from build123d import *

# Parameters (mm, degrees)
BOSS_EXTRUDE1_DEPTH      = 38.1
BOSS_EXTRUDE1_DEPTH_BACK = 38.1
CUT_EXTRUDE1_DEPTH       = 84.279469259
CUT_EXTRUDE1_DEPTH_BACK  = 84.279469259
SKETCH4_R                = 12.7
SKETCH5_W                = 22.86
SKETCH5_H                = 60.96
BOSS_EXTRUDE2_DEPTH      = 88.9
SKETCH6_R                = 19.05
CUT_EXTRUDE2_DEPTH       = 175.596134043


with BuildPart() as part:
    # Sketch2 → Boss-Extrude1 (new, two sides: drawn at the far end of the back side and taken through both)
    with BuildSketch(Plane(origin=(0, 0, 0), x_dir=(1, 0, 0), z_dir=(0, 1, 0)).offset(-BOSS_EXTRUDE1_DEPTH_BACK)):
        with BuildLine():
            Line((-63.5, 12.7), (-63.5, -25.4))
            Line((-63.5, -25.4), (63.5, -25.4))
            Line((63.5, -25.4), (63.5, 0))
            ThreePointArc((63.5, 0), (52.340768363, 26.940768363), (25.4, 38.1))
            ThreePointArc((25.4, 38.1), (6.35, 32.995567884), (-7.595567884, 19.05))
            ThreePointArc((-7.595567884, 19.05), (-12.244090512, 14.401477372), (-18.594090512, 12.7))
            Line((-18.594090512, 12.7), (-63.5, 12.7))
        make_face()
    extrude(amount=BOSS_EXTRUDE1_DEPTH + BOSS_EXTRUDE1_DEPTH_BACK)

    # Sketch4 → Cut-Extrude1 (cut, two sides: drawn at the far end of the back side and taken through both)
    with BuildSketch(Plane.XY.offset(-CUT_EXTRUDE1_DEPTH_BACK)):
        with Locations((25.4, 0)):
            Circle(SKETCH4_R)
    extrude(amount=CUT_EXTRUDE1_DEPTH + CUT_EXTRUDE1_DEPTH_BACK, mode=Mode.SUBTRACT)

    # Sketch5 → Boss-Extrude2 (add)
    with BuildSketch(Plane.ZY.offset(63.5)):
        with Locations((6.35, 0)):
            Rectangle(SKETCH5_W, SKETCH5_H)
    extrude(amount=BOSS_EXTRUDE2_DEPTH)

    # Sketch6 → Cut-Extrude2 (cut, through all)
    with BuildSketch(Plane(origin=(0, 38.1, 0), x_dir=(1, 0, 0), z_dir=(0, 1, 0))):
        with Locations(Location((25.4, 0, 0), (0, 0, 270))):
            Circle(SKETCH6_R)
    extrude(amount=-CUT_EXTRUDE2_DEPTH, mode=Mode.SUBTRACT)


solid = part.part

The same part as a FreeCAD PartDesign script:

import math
import FreeCAD as App
import Part
import Sketcher

V = App.Vector
Q = App.Units.Quantity

doc = App.newDocument("Part")
params = doc.addObject("Spreadsheet::Sheet", "Params")
for row, (alias, value) in enumerate([
    ("sketch1_radius", "1.5 in"),
    ("sketch1_radius2", "0.5 in"),
    ("sketch1_width", "5 in"),
    ("sketch1_height", "1 in"),
    ("sketch1_height2", "1.5 in"),
    ("pad1_length", "1.5 in"),
    ("pad1_length2", "1.5 in"),
    ("sketch2_diameter", "1 in"),
    ("sketch3_width", "2.4 in"),
    ("sketch3_height", "0.9 in"),
    ("pad2_length", "3.5 in"),
    ("sketch4_diameter", "1.5 in"),
], start=1):
    params.set(f"A{row}", alias)
    params.set(f"B{row}", "=" + value)
    params.setAlias(f"B{row}", alias)

body = doc.addObject("PartDesign::Body", "Body")

# Sketch on XZ plane
sketch1 = doc.addObject("Sketcher::SketchObject", "Sketch")
body.addObject(sketch1)
sketch1.AttachmentSupport = (doc.XZ_Plane, [""])
sketch1.MapMode = "FlatFace"
sketch1.addGeometry([
    Part.LineSegment(V(-64, -13, 0), V(-64, 25, 0)),  # 0
    Part.LineSegment(V(-64, 25, 0), V(64, 25, 0)),  # 1
    Part.LineSegment(V(64, 25, 0), V(64, 0, 0)),  # 2
    Part.ArcOfCircle(Part.Circle(V(25, 0, 0), V(0, 0, 1), 38), math.radians(-90), math.radians(0)),  # 3
    Part.ArcOfCircle(Part.Circle(V(25, 0, 0), V(0, 0, 1), 38), math.radians(-150), math.radians(-90)),  # 4
    Part.ArcOfCircle(Part.Circle(V(-19, -25, 0), V(0, 0, 1), 13), math.radians(30), math.radians(90)),  # 5
    Part.LineSegment(V(-19, -13, 0), V(-64, -13, 0)),  # 6
], False)
sketch1.addConstraint([
    Sketcher.Constraint("Coincident", 0, 2, 1, 1),
    Sketcher.Constraint("Coincident", 1, 2, 2, 1),
    Sketcher.Constraint("Tangent", 2, 2, 3, 2),
    Sketcher.Constraint("Tangent", 3, 1, 4, 2),
    Sketcher.Constraint("Tangent", 4, 1, 5, 1),
    Sketcher.Constraint("Tangent", 5, 2, 6, 1),
    Sketcher.Constraint("Coincident", 6, 2, 0, 1),
    Sketcher.Constraint("Vertical", 0),
    Sketcher.Constraint("Horizontal", 1),
    Sketcher.Constraint("Vertical", 2),
    Sketcher.Constraint("Horizontal", 6),
    Sketcher.Constraint("Equal", 3, 4),
    Sketcher.Constraint("PointOnObject", 3, 3, -1),
    Sketcher.Constraint("Vertical", 4, 3, 3, 1),
    Sketcher.Constraint("Radius", 3, Q("1.5 in")),
    Sketcher.Constraint("Radius", 5, Q("0.5 in")),
    Sketcher.Constraint("DistanceX", 1, 1, 1, 2, Q("5 in")),
    Sketcher.Constraint("DistanceY", 2, 2, 2, 1, Q("1 in")),
    Sketcher.Constraint("DistanceY", 0, 1, 0, 2, Q("1.5 in")),
    Sketcher.Constraint("DistanceX", -1, 1, 3, 3, Q("1 in")),
])
sketch1.setExpression("Constraints[14]", "Params.sketch1_radius")
sketch1.setExpression("Constraints[15]", "Params.sketch1_radius2")
sketch1.setExpression("Constraints[16]", "Params.sketch1_width")
sketch1.setExpression("Constraints[17]", "Params.sketch1_height")
sketch1.setExpression("Constraints[18]", "Params.sketch1_height2")
pad1 = doc.addObject("PartDesign::Pad", "Pad")
body.addObject(pad1)
pad1.Profile = sketch1
pad1.Type = "TwoLengths"
pad1.setExpression("Length", "Params.pad1_length")
pad1.setExpression("Length2", "Params.pad1_length2")
pad1.Reversed = True

# Sketch on XY plane
sketch2 = doc.addObject("Sketcher::SketchObject", "Sketch001")
body.addObject(sketch2)
sketch2.AttachmentSupport = (doc.XY_Plane, [""])
sketch2.MapMode = "FlatFace"
sketch2.addGeometry(Part.Circle(V(25, 0, 0), V(0, 0, 1), 13), False)
sketch2.addConstraint([
    Sketcher.Constraint("PointOnObject", 0, 3, -1),
    Sketcher.Constraint("Diameter", 0, Q("1 in")),
    Sketcher.Constraint("DistanceX", -1, 1, 0, 3, Q("1 in")),
])
sketch2.setExpression("Constraints[1]", "Params.sketch2_diameter")
pocket1 = doc.addObject("PartDesign::Pocket", "Pocket")
body.addObject(pocket1)
pocket1.Profile = sketch2
pocket1.Type = "ThroughAll"
pocket1.Midplane = True

# Sketch on YZ plane
sketch3 = doc.addObject("Sketcher::SketchObject", "Sketch002")
body.addObject(sketch3)
sketch3.AttachmentSupport = (doc.YZ_Plane, [""])
sketch3.MapMode = "FlatFace"
sketch3.AttachmentOffset = App.Placement(V(0, 0, -2.5 * 25.4), App.Rotation())
sketch3.addGeometry([
    Part.LineSegment(V(30, -5, 0), V(-30, -5, 0)),
    Part.LineSegment(V(-30, -5, 0), V(-30, 18, 0)),
    Part.LineSegment(V(-30, 18, 0), V(30, 18, 0)),
    Part.LineSegment(V(30, 18, 0), V(30, -5, 0)),
], False)
sketch3.addConstraint([
    Sketcher.Constraint("Coincident", 0, 2, 1, 1),
    Sketcher.Constraint("Coincident", 1, 2, 2, 1),
    Sketcher.Constraint("Coincident", 2, 2, 3, 1),
    Sketcher.Constraint("Coincident", 3, 2, 0, 1),
    Sketcher.Constraint("Horizontal", 0),
    Sketcher.Constraint("Vertical", 1),
    Sketcher.Constraint("Horizontal", 2),
    Sketcher.Constraint("Vertical", 3),
    Sketcher.Constraint("DistanceX", 0, 2, 0, 1, Q("2.4 in")),
    Sketcher.Constraint("DistanceY", 1, 1, 1, 2, Q("0.9 in")),
    Sketcher.Constraint("DistanceX", 0, 2, -1, 1, Q("1.2 in")),
    Sketcher.Constraint("DistanceY", 0, 2, -1, 1, Q("0.2 in")),
])
sketch3.setExpression("Constraints[8]", "Params.sketch3_width")
sketch3.setExpression("Constraints[9]", "Params.sketch3_height")
pad2 = doc.addObject("PartDesign::Pad", "Pad001")
body.addObject(pad2)
pad2.Profile = sketch3
pad2.setExpression("Length", "Params.pad2_length")
pad2.Reversed = True

# Sketch on XZ plane
sketch4 = doc.addObject("Sketcher::SketchObject", "Sketch003")
body.addObject(sketch4)
sketch4.AttachmentSupport = (doc.XZ_Plane, [""])
sketch4.MapMode = "FlatFace"
sketch4.AttachmentOffset = App.Placement(V(0, 0, -1.5 * 25.4), App.Rotation())
sketch4.addGeometry(Part.Circle(V(25, 0, 0), V(0, 0, 1), 19), False)
sketch4.addConstraint([
    Sketcher.Constraint("PointOnObject", 0, 3, -1),
    Sketcher.Constraint("Diameter", 0, Q("1.5 in")),
    Sketcher.Constraint("DistanceX", -1, 1, 0, 3, Q("1 in")),
])
sketch4.setExpression("Constraints[1]", "Params.sketch4_diameter")
pocket2 = doc.addObject("PartDesign::Pocket", "Pocket001")
body.addObject(pocket2)
pocket2.Profile = sketch4
pocket2.Type = "ThroughAll"
pocket2.Reversed = True

doc.recompute()
